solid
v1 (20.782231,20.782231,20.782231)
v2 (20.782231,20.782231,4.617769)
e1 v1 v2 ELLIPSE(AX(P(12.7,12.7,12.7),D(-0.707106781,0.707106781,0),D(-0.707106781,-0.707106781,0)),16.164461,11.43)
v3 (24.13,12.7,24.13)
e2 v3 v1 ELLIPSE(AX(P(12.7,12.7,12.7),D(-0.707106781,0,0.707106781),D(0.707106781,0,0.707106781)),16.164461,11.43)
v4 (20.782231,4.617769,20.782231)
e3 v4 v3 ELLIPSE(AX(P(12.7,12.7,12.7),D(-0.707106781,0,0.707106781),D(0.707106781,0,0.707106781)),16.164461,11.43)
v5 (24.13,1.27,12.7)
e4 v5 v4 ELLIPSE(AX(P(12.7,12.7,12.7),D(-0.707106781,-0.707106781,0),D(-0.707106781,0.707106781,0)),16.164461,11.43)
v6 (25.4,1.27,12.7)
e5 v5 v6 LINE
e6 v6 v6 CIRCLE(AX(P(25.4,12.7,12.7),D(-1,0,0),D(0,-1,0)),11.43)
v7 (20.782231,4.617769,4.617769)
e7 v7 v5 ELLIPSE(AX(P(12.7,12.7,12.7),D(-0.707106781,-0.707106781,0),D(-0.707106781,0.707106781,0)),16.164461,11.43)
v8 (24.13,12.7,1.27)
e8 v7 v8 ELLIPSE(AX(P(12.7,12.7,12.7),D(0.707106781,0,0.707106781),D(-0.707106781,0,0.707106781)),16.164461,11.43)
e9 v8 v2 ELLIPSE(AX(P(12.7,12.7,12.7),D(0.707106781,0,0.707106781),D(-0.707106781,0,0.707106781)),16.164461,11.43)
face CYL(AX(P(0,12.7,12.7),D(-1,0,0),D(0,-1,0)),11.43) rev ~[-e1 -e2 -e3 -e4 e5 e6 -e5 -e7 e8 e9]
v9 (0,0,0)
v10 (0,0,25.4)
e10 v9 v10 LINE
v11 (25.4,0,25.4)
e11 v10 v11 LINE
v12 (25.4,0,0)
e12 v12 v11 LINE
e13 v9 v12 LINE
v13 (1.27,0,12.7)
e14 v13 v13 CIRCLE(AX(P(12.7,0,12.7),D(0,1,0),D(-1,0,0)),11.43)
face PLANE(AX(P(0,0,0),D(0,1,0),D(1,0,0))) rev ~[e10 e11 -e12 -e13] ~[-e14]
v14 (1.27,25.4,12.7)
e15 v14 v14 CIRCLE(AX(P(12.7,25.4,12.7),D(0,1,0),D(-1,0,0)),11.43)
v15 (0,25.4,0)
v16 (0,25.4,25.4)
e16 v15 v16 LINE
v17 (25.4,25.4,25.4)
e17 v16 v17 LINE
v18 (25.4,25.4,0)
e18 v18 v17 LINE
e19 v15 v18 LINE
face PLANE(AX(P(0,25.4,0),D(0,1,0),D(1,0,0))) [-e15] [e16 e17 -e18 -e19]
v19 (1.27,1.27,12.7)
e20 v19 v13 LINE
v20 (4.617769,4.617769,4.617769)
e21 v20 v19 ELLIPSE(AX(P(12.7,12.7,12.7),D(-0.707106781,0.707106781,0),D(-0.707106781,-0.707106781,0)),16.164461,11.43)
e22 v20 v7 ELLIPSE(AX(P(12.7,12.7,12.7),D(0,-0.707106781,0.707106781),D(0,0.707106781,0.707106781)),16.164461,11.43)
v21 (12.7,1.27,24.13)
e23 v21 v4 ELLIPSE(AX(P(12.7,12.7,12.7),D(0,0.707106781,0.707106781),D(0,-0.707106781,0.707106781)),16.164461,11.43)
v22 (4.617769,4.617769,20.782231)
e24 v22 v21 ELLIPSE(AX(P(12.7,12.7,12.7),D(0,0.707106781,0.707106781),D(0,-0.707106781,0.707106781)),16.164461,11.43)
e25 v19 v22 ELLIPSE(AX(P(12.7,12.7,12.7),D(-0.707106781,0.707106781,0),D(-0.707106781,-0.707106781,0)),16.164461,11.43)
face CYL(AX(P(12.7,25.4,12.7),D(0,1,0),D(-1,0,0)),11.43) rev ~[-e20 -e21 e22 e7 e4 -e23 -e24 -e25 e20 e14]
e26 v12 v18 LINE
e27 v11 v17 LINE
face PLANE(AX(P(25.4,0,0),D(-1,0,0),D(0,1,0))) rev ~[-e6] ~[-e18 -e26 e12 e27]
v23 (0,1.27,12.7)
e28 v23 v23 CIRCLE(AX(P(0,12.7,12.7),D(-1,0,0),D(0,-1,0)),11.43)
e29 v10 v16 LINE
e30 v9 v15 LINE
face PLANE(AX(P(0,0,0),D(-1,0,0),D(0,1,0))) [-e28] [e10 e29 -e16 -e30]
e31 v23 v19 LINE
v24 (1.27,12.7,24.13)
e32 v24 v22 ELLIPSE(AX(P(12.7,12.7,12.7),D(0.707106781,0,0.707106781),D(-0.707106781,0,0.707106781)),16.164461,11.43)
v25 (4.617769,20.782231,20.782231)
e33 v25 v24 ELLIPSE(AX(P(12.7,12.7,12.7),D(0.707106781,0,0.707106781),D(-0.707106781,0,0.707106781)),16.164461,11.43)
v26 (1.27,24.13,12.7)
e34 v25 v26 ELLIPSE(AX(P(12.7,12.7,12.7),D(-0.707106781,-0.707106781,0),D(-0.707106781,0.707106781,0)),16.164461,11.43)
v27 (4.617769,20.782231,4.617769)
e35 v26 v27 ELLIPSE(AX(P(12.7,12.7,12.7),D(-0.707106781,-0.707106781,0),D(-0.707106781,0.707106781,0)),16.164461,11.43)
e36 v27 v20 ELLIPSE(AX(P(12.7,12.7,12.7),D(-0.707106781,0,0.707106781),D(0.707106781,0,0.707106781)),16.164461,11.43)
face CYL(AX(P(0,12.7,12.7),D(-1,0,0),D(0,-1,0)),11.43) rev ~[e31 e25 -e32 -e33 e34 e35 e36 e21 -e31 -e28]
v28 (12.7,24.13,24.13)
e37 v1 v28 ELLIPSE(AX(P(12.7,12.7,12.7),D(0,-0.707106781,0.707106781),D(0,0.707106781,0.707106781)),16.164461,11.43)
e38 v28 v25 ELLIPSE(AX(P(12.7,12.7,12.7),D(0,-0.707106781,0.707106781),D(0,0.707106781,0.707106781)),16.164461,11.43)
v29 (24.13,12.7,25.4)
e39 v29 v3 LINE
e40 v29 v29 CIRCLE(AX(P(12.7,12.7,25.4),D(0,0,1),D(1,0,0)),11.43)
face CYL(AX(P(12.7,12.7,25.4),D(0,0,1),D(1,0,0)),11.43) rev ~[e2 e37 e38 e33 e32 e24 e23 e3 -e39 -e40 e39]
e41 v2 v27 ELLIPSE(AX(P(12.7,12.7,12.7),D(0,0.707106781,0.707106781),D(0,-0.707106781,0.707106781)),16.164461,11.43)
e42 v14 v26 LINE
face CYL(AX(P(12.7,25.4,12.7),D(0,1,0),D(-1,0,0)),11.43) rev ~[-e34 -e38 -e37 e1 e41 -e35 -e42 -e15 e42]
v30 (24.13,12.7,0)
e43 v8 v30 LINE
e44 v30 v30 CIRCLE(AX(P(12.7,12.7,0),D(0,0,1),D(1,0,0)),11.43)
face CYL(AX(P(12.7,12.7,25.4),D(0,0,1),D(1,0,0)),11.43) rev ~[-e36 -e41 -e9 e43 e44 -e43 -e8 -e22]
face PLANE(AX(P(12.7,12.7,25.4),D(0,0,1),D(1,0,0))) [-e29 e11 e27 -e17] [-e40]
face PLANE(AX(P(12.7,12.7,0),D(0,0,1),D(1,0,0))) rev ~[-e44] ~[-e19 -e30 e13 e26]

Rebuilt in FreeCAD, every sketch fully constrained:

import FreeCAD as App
import Part
import Sketcher
Q = App.Units.Quantity

doc = App.newDocument("Part")
body = doc.addObject("PartDesign::Body", "Body")

# Sketch on XY plane
sketch1 = body.newObject("Sketcher::SketchObject", "Sketch")
sketch1.AttachmentSupport = (doc.getObject("XY_Plane"), [""])
sketch1.MapMode = "FlatFace"
sketch1.addGeometry(Part.LineSegment(App.Vector(0, 25.4, 0), App.Vector(0, 0, 0)), False)
sketch1.addGeometry(Part.LineSegment(App.Vector(0, 0, 0), App.Vector(25.4, 0, 0)), False)
sketch1.addGeometry(Part.LineSegment(App.Vector(25.4, 0, 0), App.Vector(25.4, 25.4, 0)), False)
sketch1.addGeometry(Part.LineSegment(App.Vector(25.4, 25.4, 0), App.Vector(0, 25.4, 0)), False)
sketch1.addConstraint(Sketcher.Constraint("Coincident", 0, 2, 1, 1))
sketch1.addConstraint(Sketcher.Constraint("Coincident", 1, 2, 2, 1))
sketch1.addConstraint(Sketcher.Constraint("Coincident", 2, 2, 3, 1))
sketch1.addConstraint(Sketcher.Constraint("Coincident", 3, 2, 0, 1))
sketch1.addConstraint(Sketcher.Constraint("Vertical", 0))
sketch1.addConstraint(Sketcher.Constraint("Horizontal", 1))
sketch1.addConstraint(Sketcher.Constraint("Vertical", 2))
sketch1.addConstraint(Sketcher.Constraint("Horizontal", 3))
sketch1.addConstraint(Sketcher.Constraint("Coincident", 0, 2, -1, 1))
sketch1.addConstraint(Sketcher.Constraint("Equal", 3, 0))
sketch1.addConstraint(Sketcher.Constraint("DistanceX", 1, 1, 1, 2, Q("1 in")))
pad1 = body.newObject("PartDesign::Pad", "Pad")
pad1.Profile = sketch1
pad1.Length = Q("1 in")

# Sketch on XY plane
sketch2 = body.newObject("Sketcher::SketchObject", "Sketch001")
sketch2.AttachmentSupport = (doc.getObject("XY_Plane"), [""])
sketch2.MapMode = "FlatFace"
sketch2.AttachmentOffset = App.Placement(App.Vector(0, 0, 1 * 25.4), App.Rotation())
sketch2.addGeometry(Part.Circle(App.Vector(12.7, 12.7, 0), App.Vector(0, 0, 1), 11.43), False)
sketch2.addConstraint(Sketcher.Constraint("Diameter", 0, Q("0.9 in")))
sketch2.addConstraint(Sketcher.Constraint("DistanceX", -1, 1, 0, 3, Q("0.5 in")))
sketch2.addConstraint(Sketcher.Constraint("DistanceY", -1, 1, 0, 3, Q("0.5 in")))
pocket1 = body.newObject("PartDesign::Pocket", "Pocket")
pocket1.Profile = sketch2
pocket1.Type = "ThroughAll"

# Sketch on YZ plane
sketch3 = body.newObject("Sketcher::SketchObject", "Sketch002")
sketch3.AttachmentSupport = (doc.getObject("YZ_Plane"), [""])
sketch3.MapMode = "FlatFace"
sketch3.addGeometry(Part.Circle(App.Vector(12.7, 12.7, 0), App.Vector(0, 0, 1), 11.43), False)
sketch3.addConstraint(Sketcher.Constraint("Diameter", 0, Q("0.9 in")))
sketch3.addConstraint(Sketcher.Constraint("DistanceX", -1, 1, 0, 3, Q("0.5 in")))
sketch3.addConstraint(Sketcher.Constraint("DistanceY", -1, 1, 0, 3, Q("0.5 in")))
pocket2 = body.newObject("PartDesign::Pocket", "Pocket001")
pocket2.Profile = sketch3
pocket2.Type = "ThroughAll"
pocket2.Reversed = True

# Sketch on XZ plane
sketch4 = body.newObject("Sketcher::SketchObject", "Sketch003")
sketch4.AttachmentSupport = (doc.getObject("XZ_Plane"), [""])
sketch4.MapMode = "FlatFace"
sketch4.AttachmentOffset = App.Placement(App.Vector(0, 0, -1 * 25.4), App.Rotation())
sketch4.addGeometry(Part.Circle(App.Vector(12.7, 12.7, 0), App.Vector(0, 0, 1), 11.43), False)
sketch4.addConstraint(Sketcher.Constraint("Diameter", 0, Q("0.9 in")))
sketch4.addConstraint(Sketcher.Constraint("DistanceX", -1, 1, 0, 3, Q("0.5 in")))
sketch4.addConstraint(Sketcher.Constraint("DistanceY", -1, 1, 0, 3, Q("0.5 in")))
pocket3 = body.newObject("PartDesign::Pocket", "Pocket002")
pocket3.Profile = sketch4
pocket3.Type = "ThroughAll"
pocket3.Reversed = True

doc.recompute()
